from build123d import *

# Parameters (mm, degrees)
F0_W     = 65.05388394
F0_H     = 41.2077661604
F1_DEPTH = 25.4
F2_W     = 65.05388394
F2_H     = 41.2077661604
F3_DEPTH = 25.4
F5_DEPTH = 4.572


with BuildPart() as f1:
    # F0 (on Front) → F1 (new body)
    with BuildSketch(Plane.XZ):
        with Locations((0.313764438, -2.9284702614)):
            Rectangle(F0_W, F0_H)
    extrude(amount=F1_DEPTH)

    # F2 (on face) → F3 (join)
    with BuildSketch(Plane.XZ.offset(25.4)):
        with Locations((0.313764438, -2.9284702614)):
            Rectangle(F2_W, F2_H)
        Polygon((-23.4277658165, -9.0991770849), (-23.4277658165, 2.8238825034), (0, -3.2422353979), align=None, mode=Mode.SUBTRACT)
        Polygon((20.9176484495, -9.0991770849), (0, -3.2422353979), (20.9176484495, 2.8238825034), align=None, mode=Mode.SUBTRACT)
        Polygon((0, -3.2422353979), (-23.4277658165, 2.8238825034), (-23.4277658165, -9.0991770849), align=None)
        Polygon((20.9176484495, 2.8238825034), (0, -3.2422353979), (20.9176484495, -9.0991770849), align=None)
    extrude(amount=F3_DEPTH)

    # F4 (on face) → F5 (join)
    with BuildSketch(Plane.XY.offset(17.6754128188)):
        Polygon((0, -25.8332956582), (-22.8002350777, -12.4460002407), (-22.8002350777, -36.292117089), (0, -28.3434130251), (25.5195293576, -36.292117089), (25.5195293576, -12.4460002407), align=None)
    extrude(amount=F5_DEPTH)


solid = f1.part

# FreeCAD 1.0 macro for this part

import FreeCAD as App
import Part
import Sketcher

V = App.Vector
Q = App.Units.Quantity


def add_polygon(sketch, points):
    """Adds a closed chain of lines whose ends are joined by coincident constraints."""
    first, n = sketch.GeometryCount, len(points)
    for a, b in zip(points, points[1:] + points[:1]):
        sketch.addGeometry(Part.LineSegment(App.Vector(*a, 0), App.Vector(*b, 0)), False)
    for i in range(n):
        sketch.addConstraint(Sketcher.Constraint("Coincident", first + i, 2, first + (i + 1) % n, 1))

doc = App.newDocument("Part")
body = doc.addObject("PartDesign::Body", "Body")

# Sketch on XZ plane
sketch1 = body.newObject("Sketcher::SketchObject", "Sketch")
sketch1.AttachmentSupport = (doc.getObject("XZ_Plane"), [""])
sketch1.MapMode = "FlatFace"
add_polygon(sketch1, [(-32, 18), (-32, -24), (33, -24), (33, 18)])  # lines 0-3
sketch1.addConstraint([
    Sketcher.Constraint("Vertical", 0),
    Sketcher.Constraint("Horizontal", 1),
    Sketcher.Constraint("Vertical", 2),
    Sketcher.Constraint("Horizontal", 3),
    Sketcher.Constraint("DistanceX", 1, 1, 1, 2, Q("65.053884 mm")),
    Sketcher.Constraint("DistanceY", 0, 2, 0, 1, Q("41.207766 mm")),
    Sketcher.Constraint("DistanceX", 0, 2, -1, 1, Q("32.213178 mm")),
    Sketcher.Constraint("DistanceY", 0, 2, -1, 1, Q("23.532353 mm")),
])
pad1 = body.newObject("PartDesign::Pad", "Pad")
pad1.Profile = sketch1
pad1.Length = Q("1 in")

# Sketch on XZ plane
sketch2 = body.newObject("Sketcher::SketchObject", "Sketch001")
sketch2.AttachmentSupport = (doc.getObject("XZ_Plane"), [""])
sketch2.MapMode = "FlatFace"
sketch2.AttachmentOffset = App.Placement(V(0, 0, 1 * 25.4), App.Rotation())
add_polygon(sketch2, [(-32, 18), (-32, -24), (33, -24), (33, 18)])  # lines 0-3
sketch2.addConstraint([
    Sketcher.Constraint("Vertical", 0),
    Sketcher.Constraint("Horizontal", 1),
    Sketcher.Constraint("Vertical", 2),
    Sketcher.Constraint("Horizontal", 3),
    Sketcher.Constraint("DistanceX", 1, 1, 1, 2, Q("65.053884 mm")),
    Sketcher.Constraint("DistanceY", 0, 2, 0, 1, Q("41.207766 mm")),
    Sketcher.Constraint("DistanceX", 0, 2, -1, 1, Q("32.213178 mm")),
    Sketcher.Constraint("DistanceY", 0, 2, -1, 1, Q("23.532353 mm")),
])
pad2 = body.newObject("PartDesign::Pad", "Pad001")
pad2.Profile = sketch2
pad2.Length = Q("1 in")

# Sketch on XY plane
sketch3 = body.newObject("Sketcher::SketchObject", "Sketch002")
sketch3.AttachmentSupport = (doc.getObject("XY_Plane"), [""])
sketch3.MapMode = "FlatFace"
sketch3.AttachmentOffset = App.Placement(V(0, 0, 17.675413), App.Rotation())
add_polygon(sketch3, [(0, -26), (-23, -12), (-23, -36), (0, -28), (26, -36), (26, -12)])  # lines 0-5
sketch3.addConstraint([
    Sketcher.Constraint("Vertical", 1),
    Sketcher.Constraint("Vertical", 4),
    Sketcher.Constraint("PointOnObject", 2, 2, -2),
    Sketcher.Constraint("PointOnObject", 5, 2, -2),
    Sketcher.Constraint("Horizontal", 1, 2, 3, 2),
    Sketcher.Constraint("Horizontal", 0, 2, 4, 2),
    Sketcher.Constraint("DistanceY", 0, 2, -1, 1, Q("0.49 in")),
    Sketcher.Constraint("Distance", 0, Q("26.439939 mm")),
    Sketcher.Constraint("Distance", 2, Q("24.146068 mm")),
    Sketcher.Constraint("Distance", 3, Q("26.728791 mm")),
    Sketcher.Constraint("DistanceY", 1, 2, 1, 1, Q("23.846117 mm")),
    Sketcher.Constraint("DistanceX", -1, 1, 3, 2, Q("25.519529 mm")),
])
pad3 = body.newObject("PartDesign::Pad", "Pad002")
pad3.Profile = sketch3
pad3.Length = Q("0.18 in")

doc.recompute()
